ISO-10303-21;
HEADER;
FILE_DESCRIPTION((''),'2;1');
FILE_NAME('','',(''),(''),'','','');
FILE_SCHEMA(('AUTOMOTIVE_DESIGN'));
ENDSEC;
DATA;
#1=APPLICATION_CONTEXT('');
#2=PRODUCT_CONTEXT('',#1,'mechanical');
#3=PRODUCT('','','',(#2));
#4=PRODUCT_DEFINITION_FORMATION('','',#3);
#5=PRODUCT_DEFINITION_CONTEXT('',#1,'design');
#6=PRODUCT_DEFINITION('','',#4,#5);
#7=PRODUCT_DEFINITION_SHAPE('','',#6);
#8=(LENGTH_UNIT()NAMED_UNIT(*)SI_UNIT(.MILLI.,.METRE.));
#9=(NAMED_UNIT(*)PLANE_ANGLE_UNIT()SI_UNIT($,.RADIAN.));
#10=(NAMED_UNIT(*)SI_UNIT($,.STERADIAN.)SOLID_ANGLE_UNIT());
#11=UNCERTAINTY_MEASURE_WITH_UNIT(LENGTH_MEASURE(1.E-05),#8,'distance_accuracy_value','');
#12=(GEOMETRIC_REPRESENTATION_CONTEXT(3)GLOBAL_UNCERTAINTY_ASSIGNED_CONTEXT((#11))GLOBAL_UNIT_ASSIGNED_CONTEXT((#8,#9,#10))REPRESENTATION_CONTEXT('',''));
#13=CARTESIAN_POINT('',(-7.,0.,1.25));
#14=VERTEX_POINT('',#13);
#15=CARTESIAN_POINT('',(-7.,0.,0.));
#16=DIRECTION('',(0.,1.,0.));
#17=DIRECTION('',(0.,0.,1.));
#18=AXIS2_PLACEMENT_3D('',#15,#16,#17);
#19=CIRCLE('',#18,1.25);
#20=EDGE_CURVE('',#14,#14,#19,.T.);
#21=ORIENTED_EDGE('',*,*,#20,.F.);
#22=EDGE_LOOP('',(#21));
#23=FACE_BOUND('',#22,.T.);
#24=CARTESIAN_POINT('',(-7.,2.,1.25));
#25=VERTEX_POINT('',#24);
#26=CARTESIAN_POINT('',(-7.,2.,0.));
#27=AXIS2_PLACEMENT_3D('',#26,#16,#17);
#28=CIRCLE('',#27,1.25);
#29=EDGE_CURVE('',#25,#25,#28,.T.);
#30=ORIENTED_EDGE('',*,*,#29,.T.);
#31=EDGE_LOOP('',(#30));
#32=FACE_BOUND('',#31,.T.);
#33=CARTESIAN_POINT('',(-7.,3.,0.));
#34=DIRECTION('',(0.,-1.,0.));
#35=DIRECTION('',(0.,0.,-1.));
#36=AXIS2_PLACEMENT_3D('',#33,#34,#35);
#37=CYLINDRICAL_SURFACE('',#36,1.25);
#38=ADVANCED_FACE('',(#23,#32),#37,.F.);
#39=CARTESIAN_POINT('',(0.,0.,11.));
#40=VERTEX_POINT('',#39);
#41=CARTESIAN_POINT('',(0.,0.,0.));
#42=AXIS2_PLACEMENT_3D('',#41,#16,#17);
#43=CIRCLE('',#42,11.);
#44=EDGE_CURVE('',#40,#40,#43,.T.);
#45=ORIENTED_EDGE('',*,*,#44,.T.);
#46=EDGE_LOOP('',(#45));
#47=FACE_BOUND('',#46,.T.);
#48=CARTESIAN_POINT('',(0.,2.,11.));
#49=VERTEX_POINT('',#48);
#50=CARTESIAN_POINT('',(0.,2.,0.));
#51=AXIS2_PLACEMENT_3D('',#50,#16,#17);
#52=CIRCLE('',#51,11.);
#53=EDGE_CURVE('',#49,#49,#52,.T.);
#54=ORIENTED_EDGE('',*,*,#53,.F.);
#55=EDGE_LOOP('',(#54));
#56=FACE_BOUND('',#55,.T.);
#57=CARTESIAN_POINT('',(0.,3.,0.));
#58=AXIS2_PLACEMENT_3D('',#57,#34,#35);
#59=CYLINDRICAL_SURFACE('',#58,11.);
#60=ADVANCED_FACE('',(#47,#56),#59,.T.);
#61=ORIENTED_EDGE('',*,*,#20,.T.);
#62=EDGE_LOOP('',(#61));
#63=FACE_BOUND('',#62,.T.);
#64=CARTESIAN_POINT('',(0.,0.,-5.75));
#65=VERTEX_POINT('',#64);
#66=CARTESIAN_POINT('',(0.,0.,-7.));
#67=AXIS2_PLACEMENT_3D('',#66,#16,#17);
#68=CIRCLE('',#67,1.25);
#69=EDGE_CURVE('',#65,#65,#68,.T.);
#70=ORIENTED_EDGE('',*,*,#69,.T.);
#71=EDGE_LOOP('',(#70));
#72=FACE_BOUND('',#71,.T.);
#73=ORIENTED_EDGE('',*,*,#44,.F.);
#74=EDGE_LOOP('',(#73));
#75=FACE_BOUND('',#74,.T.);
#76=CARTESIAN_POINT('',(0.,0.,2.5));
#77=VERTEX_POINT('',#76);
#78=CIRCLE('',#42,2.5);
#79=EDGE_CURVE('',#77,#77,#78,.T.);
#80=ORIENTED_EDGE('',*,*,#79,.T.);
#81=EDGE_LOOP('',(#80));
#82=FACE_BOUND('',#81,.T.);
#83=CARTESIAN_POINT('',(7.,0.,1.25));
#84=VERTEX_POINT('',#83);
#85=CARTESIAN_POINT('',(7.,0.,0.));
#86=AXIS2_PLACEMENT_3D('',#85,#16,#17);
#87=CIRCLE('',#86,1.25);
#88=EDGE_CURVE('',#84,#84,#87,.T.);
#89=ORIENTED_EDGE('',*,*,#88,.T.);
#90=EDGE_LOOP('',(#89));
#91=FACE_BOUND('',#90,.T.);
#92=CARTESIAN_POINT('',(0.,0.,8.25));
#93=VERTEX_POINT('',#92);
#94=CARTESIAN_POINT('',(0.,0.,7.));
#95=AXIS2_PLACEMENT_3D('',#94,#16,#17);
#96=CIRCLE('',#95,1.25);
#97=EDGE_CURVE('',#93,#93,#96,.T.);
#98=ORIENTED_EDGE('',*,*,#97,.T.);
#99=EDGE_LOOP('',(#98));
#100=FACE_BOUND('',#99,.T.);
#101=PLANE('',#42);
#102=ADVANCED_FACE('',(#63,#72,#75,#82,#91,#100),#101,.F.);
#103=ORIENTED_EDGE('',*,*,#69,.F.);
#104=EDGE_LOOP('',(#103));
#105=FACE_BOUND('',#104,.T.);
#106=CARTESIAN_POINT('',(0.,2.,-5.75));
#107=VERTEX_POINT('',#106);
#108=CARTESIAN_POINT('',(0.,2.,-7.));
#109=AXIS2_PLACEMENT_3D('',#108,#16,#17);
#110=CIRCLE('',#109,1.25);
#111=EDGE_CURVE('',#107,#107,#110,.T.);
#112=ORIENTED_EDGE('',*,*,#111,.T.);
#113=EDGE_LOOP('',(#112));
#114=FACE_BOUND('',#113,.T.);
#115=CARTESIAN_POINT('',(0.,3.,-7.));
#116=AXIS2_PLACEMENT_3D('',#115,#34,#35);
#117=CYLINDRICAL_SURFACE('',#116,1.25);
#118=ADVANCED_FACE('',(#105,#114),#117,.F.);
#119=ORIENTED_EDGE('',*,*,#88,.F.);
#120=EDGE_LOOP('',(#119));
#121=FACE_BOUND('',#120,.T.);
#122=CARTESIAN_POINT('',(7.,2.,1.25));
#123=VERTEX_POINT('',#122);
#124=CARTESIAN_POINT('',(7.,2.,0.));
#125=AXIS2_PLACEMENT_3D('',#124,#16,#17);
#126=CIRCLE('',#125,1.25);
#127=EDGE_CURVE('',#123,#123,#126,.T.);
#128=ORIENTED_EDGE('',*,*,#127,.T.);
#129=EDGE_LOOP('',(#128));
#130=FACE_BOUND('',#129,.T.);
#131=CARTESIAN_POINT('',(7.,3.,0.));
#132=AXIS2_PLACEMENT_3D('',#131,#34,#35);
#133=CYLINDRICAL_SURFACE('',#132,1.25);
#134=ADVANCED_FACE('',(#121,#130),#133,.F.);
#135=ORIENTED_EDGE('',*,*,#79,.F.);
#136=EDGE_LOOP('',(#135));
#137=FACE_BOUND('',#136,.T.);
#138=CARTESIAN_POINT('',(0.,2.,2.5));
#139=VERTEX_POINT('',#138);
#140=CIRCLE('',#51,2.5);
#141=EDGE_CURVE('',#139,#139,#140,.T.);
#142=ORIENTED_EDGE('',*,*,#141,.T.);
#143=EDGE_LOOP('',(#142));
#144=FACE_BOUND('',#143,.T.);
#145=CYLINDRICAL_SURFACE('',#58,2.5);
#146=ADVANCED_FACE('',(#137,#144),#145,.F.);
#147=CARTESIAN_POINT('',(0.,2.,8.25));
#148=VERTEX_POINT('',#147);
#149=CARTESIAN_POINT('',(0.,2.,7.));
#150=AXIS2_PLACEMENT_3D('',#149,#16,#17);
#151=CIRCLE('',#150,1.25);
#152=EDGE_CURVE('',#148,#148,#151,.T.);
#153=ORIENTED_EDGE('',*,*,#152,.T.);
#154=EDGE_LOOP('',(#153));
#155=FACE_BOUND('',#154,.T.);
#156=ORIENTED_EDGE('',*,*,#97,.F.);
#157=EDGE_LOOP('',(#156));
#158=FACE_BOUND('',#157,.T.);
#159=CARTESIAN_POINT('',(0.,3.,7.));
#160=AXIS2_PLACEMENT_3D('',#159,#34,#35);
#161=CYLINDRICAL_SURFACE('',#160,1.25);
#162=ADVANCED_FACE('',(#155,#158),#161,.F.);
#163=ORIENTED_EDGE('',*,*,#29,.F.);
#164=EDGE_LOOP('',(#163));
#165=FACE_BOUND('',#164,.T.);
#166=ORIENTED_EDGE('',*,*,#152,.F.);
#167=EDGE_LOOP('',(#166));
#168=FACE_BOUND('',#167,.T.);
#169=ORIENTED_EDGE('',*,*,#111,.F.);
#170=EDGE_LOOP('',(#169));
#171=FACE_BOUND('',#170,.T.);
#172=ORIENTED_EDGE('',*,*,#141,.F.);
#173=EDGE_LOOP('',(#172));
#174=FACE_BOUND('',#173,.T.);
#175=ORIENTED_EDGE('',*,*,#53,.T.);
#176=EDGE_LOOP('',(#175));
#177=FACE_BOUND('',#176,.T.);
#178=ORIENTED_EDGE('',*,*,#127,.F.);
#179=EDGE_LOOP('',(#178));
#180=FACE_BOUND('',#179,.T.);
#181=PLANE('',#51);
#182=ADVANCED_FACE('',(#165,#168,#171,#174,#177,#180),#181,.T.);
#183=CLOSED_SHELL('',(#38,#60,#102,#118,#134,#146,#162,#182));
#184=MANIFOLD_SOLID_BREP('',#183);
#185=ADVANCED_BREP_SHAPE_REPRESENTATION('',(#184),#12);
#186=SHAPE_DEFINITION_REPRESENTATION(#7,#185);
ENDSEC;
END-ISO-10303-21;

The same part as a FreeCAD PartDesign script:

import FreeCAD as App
import Part
import Sketcher

doc = App.newDocument("Part")
body = doc.addObject("PartDesign::Body", "Body")

sketch1 = body.newObject("Sketcher::SketchObject", "Sketch")
sketch1.AttachmentSupport = (doc.getObject("XZ_Plane"), [""])
sketch1.MapMode = "FlatFace"
sketch1.addGeometry(Part.Circle(App.Vector(0, 0, 0), App.Vector(0, 0, 1), 11), False)
sketch1.addGeometry(Part.Circle(App.Vector(0, -7, 0), App.Vector(0, 0, 1), 1.2), False)
sketch1.addGeometry(Part.Circle(App.Vector(-7, 0, 0), App.Vector(0, 0, 1), 1.2), False)
sketch1.addGeometry(Part.Circle(App.Vector(0, 0, 0), App.Vector(0, 0, 1), 2.5), False)
sketch1.addGeometry(Part.Circle(App.Vector(0, 7, 0), App.Vector(0, 0, 1), 1.2), False)
sketch1.addGeometry(Part.Circle(App.Vector(7, 0, 0), App.Vector(0, 0, 1), 1.2), False)
sketch1.addConstraint(Sketcher.Constraint("Coincident", 0, 3, -1, 1))
sketch1.addConstraint(Sketcher.Constraint("Coincident", 3, 3, -1, 1))
sketch1.addConstraint(Sketcher.Constraint("Equal", 1, 2))
sketch1.addConstraint(Sketcher.Constraint("Equal", 2, 4))
sketch1.addConstraint(Sketcher.Constraint("Equal", 4, 5))
sketch1.addConstraint(Sketcher.Constraint("Symmetric", 1, 3, 4, 3, -1, 1))
sketch1.addConstraint(Sketcher.Constraint("Symmetric", 2, 3, 5, 3, -1, 1))
sketch1.addConstraint(Sketcher.Constraint("PointOnObject", 1, 3, -2))
sketch1.addConstraint(Sketcher.Constraint("PointOnObject", 2, 3, -1))
sketch1.addConstraint(Sketcher.Constraint("Diameter", 0, 22.0))
sketch1.addConstraint(Sketcher.Constraint("Diameter", 3, 5.0))
sketch1.addConstraint(Sketcher.Constraint("Diameter", 1, 2.5))
sketch1.addConstraint(Sketcher.Constraint("DistanceY", 1, 3, -1, 1, 7.0))
sketch1.addConstraint(Sketcher.Constraint("DistanceX", 2, 3, -1, 1, 7.0))
pad1 = body.newObject("PartDesign::Pad", "Pad")
pad1.Profile = sketch1
pad1.Length = 3
pad1.Reversed = True

sketch2 = body.newObject("Sketcher::SketchObject", "Sketch001")
sketch2.AttachmentSupport = (doc.getObject("XZ_Plane"), [""])
sketch2.MapMode = "FlatFace"
sketch2.AttachmentOffset = App.Placement(App.Vector(0, 0, -2), App.Rotation())
sketch2.addGeometry(Part.Circle(App.Vector(0, 0, 0), App.Vector(0, 0, 1), 11), False)
sketch2.addConstraint(Sketcher.Constraint("Coincident", 0, 3, -1, 1))
sketch2.addConstraint(Sketcher.Constraint("Diameter", 0, 22.0))
pocket1 = body.newObject("PartDesign::Pocket", "Pocket")
pocket1.Profile = sketch2
pocket1.Length = 1

doc.recompute()
